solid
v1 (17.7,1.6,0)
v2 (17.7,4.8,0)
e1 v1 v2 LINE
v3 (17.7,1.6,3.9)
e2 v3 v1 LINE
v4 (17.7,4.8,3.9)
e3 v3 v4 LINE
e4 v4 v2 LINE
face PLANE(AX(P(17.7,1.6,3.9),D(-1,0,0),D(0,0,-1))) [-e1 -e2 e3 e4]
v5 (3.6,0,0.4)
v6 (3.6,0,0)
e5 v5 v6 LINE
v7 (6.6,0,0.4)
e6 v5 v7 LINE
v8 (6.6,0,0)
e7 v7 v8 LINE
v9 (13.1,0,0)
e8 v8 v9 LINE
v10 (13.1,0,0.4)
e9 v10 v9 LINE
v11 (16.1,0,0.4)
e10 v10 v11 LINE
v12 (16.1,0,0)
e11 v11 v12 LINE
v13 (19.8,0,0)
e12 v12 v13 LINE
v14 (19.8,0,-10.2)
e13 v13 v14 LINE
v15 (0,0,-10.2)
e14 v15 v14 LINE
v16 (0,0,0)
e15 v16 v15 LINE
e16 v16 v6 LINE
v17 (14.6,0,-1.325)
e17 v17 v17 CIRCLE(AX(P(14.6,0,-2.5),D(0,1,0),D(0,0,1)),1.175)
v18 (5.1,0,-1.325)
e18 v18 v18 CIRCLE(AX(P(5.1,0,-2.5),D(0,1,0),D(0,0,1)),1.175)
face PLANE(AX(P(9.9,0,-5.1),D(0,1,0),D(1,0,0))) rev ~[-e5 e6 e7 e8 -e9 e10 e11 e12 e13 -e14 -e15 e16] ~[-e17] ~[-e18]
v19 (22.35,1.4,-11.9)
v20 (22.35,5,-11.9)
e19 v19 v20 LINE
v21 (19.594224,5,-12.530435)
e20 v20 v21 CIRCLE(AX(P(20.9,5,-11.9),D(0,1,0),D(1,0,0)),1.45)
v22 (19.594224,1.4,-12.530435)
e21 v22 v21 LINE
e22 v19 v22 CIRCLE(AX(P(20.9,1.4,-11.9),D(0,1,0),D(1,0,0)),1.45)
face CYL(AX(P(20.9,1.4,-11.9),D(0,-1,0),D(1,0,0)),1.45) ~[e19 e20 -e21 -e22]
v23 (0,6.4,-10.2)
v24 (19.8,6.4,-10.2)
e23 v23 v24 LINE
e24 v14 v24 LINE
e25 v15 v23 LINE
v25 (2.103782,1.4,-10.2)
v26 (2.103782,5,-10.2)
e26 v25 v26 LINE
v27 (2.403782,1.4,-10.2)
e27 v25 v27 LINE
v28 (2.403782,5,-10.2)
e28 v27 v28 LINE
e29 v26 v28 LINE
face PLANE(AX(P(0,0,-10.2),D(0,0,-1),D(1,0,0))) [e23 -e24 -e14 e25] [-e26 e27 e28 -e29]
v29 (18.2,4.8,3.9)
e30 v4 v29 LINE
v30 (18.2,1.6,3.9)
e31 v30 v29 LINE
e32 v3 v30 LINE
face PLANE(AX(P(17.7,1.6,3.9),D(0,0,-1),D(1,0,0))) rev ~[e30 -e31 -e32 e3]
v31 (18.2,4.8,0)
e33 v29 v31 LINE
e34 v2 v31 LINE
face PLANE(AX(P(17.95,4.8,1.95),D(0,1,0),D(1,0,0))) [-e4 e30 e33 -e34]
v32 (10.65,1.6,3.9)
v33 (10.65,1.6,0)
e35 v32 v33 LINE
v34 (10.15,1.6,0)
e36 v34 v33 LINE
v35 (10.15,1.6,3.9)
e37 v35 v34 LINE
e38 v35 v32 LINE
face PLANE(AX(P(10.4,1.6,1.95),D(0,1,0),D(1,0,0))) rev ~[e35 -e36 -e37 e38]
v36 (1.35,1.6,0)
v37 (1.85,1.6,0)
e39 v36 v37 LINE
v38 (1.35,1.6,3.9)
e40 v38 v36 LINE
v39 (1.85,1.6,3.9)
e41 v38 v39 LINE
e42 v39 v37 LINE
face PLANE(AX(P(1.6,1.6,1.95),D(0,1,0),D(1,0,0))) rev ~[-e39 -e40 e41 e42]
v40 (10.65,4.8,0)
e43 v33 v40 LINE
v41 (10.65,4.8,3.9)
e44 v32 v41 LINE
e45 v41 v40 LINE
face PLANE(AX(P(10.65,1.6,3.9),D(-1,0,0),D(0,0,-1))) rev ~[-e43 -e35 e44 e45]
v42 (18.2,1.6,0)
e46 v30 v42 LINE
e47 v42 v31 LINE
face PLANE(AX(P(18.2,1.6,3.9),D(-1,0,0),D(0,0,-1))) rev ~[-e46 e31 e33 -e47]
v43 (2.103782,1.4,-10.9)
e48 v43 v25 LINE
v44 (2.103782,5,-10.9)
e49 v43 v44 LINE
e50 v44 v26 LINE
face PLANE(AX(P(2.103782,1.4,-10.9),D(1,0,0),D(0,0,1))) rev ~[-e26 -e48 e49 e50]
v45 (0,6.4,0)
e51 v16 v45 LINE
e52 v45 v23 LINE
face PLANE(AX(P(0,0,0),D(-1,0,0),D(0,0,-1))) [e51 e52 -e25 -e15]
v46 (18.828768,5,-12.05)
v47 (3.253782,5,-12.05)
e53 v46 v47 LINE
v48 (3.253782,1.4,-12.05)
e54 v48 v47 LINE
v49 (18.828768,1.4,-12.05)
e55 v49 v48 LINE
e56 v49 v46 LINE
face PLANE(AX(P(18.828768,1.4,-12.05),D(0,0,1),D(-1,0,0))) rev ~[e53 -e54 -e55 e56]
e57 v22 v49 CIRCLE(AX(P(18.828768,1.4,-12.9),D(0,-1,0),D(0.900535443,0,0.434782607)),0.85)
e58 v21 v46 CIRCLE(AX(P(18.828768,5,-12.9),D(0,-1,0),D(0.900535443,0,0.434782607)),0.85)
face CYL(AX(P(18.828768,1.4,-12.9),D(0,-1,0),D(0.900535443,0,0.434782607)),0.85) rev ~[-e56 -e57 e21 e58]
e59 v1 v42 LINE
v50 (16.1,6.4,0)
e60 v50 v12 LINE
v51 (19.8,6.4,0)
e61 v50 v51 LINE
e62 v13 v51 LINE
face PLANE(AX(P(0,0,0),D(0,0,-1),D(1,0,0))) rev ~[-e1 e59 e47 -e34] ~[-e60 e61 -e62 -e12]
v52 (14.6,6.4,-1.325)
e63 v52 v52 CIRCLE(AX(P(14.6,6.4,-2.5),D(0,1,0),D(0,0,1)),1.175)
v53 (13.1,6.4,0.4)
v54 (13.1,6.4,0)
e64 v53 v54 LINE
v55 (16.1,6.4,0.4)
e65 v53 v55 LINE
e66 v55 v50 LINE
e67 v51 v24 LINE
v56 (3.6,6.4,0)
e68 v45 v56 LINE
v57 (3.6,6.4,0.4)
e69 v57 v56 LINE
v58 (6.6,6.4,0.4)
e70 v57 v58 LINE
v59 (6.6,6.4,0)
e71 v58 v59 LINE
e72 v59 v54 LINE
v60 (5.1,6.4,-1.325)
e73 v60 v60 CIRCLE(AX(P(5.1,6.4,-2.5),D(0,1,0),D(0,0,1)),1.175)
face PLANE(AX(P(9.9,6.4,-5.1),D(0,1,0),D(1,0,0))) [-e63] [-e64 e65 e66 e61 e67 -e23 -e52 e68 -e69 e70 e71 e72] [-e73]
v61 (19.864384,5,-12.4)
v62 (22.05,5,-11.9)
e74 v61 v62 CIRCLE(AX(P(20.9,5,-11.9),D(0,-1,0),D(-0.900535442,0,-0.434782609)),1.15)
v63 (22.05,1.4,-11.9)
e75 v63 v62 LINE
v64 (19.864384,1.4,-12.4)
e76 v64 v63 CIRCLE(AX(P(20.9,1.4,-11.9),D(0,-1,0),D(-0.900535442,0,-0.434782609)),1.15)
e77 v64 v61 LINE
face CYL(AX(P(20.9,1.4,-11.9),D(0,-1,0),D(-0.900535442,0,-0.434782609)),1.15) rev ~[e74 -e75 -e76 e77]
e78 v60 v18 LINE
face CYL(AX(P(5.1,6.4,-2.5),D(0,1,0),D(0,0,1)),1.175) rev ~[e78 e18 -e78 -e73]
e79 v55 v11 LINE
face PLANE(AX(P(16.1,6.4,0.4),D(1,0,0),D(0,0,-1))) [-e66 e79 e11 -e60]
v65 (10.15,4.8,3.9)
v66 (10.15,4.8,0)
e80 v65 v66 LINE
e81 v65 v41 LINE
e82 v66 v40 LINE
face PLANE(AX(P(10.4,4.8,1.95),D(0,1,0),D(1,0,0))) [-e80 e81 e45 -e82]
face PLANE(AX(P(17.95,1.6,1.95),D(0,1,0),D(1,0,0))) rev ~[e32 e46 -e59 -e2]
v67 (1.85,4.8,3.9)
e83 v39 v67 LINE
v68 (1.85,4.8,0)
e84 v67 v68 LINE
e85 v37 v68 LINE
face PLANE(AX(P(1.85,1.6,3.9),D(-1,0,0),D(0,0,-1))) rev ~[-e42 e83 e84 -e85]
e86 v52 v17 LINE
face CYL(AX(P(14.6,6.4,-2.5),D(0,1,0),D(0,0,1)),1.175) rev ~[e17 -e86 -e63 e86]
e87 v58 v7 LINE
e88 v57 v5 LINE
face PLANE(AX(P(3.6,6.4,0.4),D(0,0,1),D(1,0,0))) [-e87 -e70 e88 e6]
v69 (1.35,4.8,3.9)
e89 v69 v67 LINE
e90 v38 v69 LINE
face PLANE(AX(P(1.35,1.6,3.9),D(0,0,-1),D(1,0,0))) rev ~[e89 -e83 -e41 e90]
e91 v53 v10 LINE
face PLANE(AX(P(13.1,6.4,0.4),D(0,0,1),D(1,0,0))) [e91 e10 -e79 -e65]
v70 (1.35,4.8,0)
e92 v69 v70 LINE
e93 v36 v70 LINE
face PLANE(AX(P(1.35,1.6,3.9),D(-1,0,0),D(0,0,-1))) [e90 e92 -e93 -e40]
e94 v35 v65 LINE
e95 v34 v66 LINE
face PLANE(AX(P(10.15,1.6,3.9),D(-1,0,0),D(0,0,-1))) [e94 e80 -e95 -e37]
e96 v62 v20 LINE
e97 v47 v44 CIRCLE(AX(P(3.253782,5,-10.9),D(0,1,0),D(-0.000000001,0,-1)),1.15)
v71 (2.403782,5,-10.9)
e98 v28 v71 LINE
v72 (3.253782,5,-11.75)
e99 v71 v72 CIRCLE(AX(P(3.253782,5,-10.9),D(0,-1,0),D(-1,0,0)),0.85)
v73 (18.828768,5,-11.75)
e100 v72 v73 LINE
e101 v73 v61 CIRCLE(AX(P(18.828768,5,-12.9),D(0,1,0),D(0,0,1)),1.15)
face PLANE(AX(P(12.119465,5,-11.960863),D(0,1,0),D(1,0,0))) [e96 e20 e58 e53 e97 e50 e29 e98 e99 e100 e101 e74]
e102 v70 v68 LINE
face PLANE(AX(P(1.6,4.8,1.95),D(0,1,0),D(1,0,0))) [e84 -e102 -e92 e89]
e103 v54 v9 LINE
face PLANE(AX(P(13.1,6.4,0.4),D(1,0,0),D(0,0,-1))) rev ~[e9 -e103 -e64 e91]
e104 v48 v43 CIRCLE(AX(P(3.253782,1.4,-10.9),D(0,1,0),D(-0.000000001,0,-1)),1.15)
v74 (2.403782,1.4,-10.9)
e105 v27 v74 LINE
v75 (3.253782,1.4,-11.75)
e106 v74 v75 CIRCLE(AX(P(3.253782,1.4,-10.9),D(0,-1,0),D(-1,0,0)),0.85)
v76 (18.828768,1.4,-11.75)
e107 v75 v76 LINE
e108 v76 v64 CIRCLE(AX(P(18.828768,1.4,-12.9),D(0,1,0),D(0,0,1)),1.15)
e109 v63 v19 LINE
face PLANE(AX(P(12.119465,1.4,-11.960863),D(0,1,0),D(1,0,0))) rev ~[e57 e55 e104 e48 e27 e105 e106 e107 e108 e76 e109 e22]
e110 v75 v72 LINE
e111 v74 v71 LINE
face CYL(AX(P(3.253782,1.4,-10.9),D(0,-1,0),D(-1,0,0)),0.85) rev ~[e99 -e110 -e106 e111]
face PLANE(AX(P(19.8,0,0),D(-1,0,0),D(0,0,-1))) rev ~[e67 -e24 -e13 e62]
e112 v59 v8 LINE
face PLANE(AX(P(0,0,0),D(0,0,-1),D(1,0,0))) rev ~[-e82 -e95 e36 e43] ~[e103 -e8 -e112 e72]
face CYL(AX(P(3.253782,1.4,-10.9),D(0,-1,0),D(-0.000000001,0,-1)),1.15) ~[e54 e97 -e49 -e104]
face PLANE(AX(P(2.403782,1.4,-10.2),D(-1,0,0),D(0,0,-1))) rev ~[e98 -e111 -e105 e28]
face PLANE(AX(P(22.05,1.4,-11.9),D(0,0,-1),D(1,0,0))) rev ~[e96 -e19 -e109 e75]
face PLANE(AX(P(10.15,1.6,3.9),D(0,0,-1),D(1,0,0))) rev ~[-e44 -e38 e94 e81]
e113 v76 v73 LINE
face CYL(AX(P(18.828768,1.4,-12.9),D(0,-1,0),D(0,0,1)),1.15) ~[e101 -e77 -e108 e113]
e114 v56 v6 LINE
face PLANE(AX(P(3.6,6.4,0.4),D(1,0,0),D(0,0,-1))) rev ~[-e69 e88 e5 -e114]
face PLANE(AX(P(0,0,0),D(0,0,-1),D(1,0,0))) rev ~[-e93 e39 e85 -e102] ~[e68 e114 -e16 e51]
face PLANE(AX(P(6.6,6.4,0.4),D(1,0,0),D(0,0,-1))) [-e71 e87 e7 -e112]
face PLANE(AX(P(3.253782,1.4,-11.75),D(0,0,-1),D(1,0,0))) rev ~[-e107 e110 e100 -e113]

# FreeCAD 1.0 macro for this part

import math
import FreeCAD as App
import Part
import Sketcher

V = App.Vector
Q = App.Units.Quantity

doc = App.newDocument("Part")
params = doc.addObject("Spreadsheet::Sheet", "Params")
for row, (alias, value) in enumerate([
    ("sketch1_width", "19.8 mm"),
    ("sketch1_height", "10.2 mm"),
    ("pad1_length", "6.4 mm"),
    ("sketch2_diameter", "2.35 mm"),
    ("sketch3_diameter", "2.35 mm"),
    ("sketch4_radius", "0.85 mm"),
    ("sketch4_radius2", "1.15 mm"),
    ("sketch4_height", "0.7 mm"),
    ("pad2_length", "1.8 mm"),
    ("pad2_length2", "1.8 mm"),
    ("sketch5_width", "0.5 mm"),
    ("sketch5_height", "3.9 mm"),
    ("pad3_length", "1.6 mm"),
    ("pad3_length2", "1.6 mm"),
    ("sketch6_width", "3 mm"),
    ("sketch6_height", "0.4 mm"),
    ("pad4_length", "6.4 mm"),
], start=1):
    params.set(f"A{row}", alias)
    params.set(f"B{row}", "=" + value)
    params.setAlias(f"B{row}", alias)

body = doc.addObject("PartDesign::Body", "Body")

# Sketch on XZ plane
sketch1 = body.newObject("Sketcher::SketchObject", "Sketch")
sketch1.AttachmentSupport = (doc.getObject("XZ_Plane"), [""])
sketch1.MapMode = "FlatFace"
sketch1.addGeometry([
    Part.LineSegment(V(0, -10, 0), V(0, 0, 0)),
    Part.LineSegment(V(0, 0, 0), V(20, 0, 0)),
    Part.LineSegment(V(20, 0, 0), V(20, -10, 0)),
    Part.LineSegment(V(20, -10, 0), V(0, -10, 0)),
], False)
sketch1.addConstraint([
    Sketcher.Constraint("Coincident", 0, 2, 1, 1),
    Sketcher.Constraint("Coincident", 1, 2, 2, 1),
    Sketcher.Constraint("Coincident", 2, 2, 3, 1),
    Sketcher.Constraint("Coincident", 3, 2, 0, 1),
    Sketcher.Constraint("Vertical", 0),
    Sketcher.Constraint("Horizontal", 1),
    Sketcher.Constraint("Vertical", 2),
    Sketcher.Constraint("Horizontal", 3),
    Sketcher.Constraint("Coincident", 0, 2, -1, 1),
    Sketcher.Constraint("DistanceX", 1, 1, 1, 2, Q("19.8 mm")),
    Sketcher.Constraint("DistanceY", 0, 1, 0, 2, Q("10.2 mm")),
])
sketch1.setExpression("Constraints[9]", "Params.sketch1_width")
sketch1.setExpression("Constraints[10]", "Params.sketch1_height")
pad1 = body.newObject("PartDesign::Pad", "Pad")
pad1.Profile = sketch1
pad1.setExpression("Length", "Params.pad1_length")
pad1.Reversed = True

# Sketch on XZ plane
sketch2 = body.newObject("Sketcher::SketchObject", "Sketch001")
sketch2.AttachmentSupport = (doc.getObject("XZ_Plane"), [""])
sketch2.MapMode = "FlatFace"
sketch2.AttachmentOffset = App.Placement(V(0, 0, -6.4), App.Rotation())
sketch2.addGeometry(Part.Circle(V(5.1, -2.5, 0), V(0, 0, 1), 1.2), False)
sketch2.addConstraint([
    Sketcher.Constraint("Diameter", 0, Q("2.35 mm")),
    Sketcher.Constraint("DistanceX", -1, 1, 0, 3, Q("5.1 mm")),
    Sketcher.Constraint("DistanceY", 0, 3, -1, 1, Q("2.5 mm")),
])
sketch2.setExpression("Constraints[0]", "Params.sketch2_diameter")
pocket1 = body.newObject("PartDesign::Pocket", "Pocket")
pocket1.Profile = sketch2
pocket1.Type = "UpToFirst"
pocket1.Reversed = True

# Sketch on XZ plane
sketch3 = body.newObject("Sketcher::SketchObject", "Sketch002")
sketch3.AttachmentSupport = (doc.getObject("XZ_Plane"), [""])
sketch3.MapMode = "FlatFace"
sketch3.AttachmentOffset = App.Placement(V(0, 0, -6.4), App.Rotation())
sketch3.addGeometry(Part.Circle(V(14.6, -2.5, 0), V(0, 0, 1), 1.2), False)
sketch3.addConstraint([
    Sketcher.Constraint("Diameter", 0, Q("2.35 mm")),
    Sketcher.Constraint("DistanceX", -1, 1, 0, 3, Q("14.6 mm")),
    Sketcher.Constraint("DistanceY", 0, 3, -1, 1, Q("2.5 mm")),
])
sketch3.setExpression("Constraints[0]", "Params.sketch3_diameter")
pocket2 = body.newObject("PartDesign::Pocket", "Pocket001")
pocket2.Profile = sketch3
pocket2.Type = "UpToFirst"
pocket2.Reversed = True

# Sketch on XZ plane
sketch4 = body.newObject("Sketcher::SketchObject", "Sketch003")
sketch4.AttachmentSupport = (doc.getObject("XZ_Plane"), [""])
sketch4.MapMode = "FlatFace"
sketch4.AttachmentOffset = App.Placement(V(0, 0, -3.2), App.Rotation())
sketch4.addGeometry([
    Part.LineSegment(V(2.4, -10.2, 0), V(2.4, -10.9, 0)),  # 0
    Part.ArcOfCircle(Part.Circle(V(3.25, -10.9, 0), V(0, 0, 1), 0.85), math.radians(180), math.radians(270)),  # 1
    Part.LineSegment(V(3.25, -11.75, 0), V(18.83, -11.75, 0)),  # 2
    Part.ArcOfCircle(Part.Circle(V(18.83, -12.9, 0), V(0, 0, 1), 1.15), math.radians(26), math.radians(90)),  # 3
    Part.ArcOfCircle(Part.Circle(V(20.9, -11.9, 0), V(0, 0, 1), 1.15), math.radians(-154), math.radians(0)),  # 4
    Part.LineSegment(V(22.05, -11.9, 0), V(22.35, -11.9, 0)),  # 5
    Part.ArcOfCircle(Part.Circle(V(20.9, -11.9, 0), V(0, 0, 1), 1.45), math.radians(-154), math.radians(0)),  # 6
    Part.ArcOfCircle(Part.Circle(V(18.83, -12.9, 0), V(0, 0, 1), 0.85), math.radians(26), math.radians(90)),  # 7
    Part.LineSegment(V(18.83, -12.05, 0), V(3.25, -12.05, 0)),  # 8
    Part.ArcOfCircle(Part.Circle(V(3.25, -10.9, 0), V(0, 0, 1), 1.15), math.radians(-180), math.radians(-90)),  # 9
    Part.LineSegment(V(2.1, -10.9, 0), V(2.1, -10.2, 0)),  # 10
    Part.LineSegment(V(2.1, -10.2, 0), V(2.4, -10.2, 0)),  # 11
], False)
sketch4.addConstraint([
    Sketcher.Constraint("Tangent", 0, 2, 1, 1),
    Sketcher.Constraint("Tangent", 1, 2, 2, 1),
    Sketcher.Constraint("Tangent", 2, 2, 3, 2),
    Sketcher.Constraint("Tangent", 3, 1, 4, 1),
    Sketcher.Constraint("Coincident", 4, 2, 5, 1),
    Sketcher.Constraint("Coincident", 5, 2, 6, 2),
    Sketcher.Constraint("Tangent", 6, 1, 7, 1),
    Sketcher.Constraint("Tangent", 7, 2, 8, 1),
    Sketcher.Constraint("Tangent", 8, 2, 9, 2),
    Sketcher.Constraint("Tangent", 9, 1, 10, 1),
    Sketcher.Constraint("Coincident", 10, 2, 11, 1),
    Sketcher.Constraint("Coincident", 11, 2, 0, 1),
    Sketcher.Constraint("Vertical", 0),
    Sketcher.Constraint("Horizontal", 2),
    Sketcher.Constraint("Horizontal", 5),
    Sketcher.Constraint("Horizontal", 8),
    Sketcher.Constraint("Vertical", 10),
    Sketcher.Constraint("Horizontal", 11),
    Sketcher.Constraint("Coincident", 6, 3, 4, 3),
    Sketcher.Constraint("Coincident", 7, 3, 3, 3),
    Sketcher.Constraint("Coincident", 9, 3, 1, 3),
    Sketcher.Constraint("Equal", 3, 4),
    Sketcher.Constraint("Equal", 1, 7),
    Sketcher.Constraint("Horizontal", 6, 3, 4, 2),
    Sketcher.Constraint("Radius", 1, Q("0.85 mm")),
    Sketcher.Constraint("Radius", 3, Q("1.15 mm")),
    Sketcher.Constraint("DistanceY", 0, 2, 0, 1, Q("0.7 mm")),
    Sketcher.Constraint("DistanceY", 3, 3, 4, 3, Q("1 mm")),
    Sketcher.Constraint("DistanceY", 1, 3, -1, 1, Q("10.9 mm")),
    Sketcher.Constraint("DistanceX", -1, 1, 4, 3, Q("20.9 mm")),
    Sketcher.Constraint("DistanceX", 2, 1, 2, 2, Q("15.574986 mm")),
])
sketch4.setExpression("Constraints[24]", "Params.sketch4_radius")
sketch4.setExpression("Constraints[25]", "Params.sketch4_radius2")
sketch4.setExpression("Constraints[26]", "Params.sketch4_height")
pad2 = body.newObject("PartDesign::Pad", "Pad001")
pad2.Profile = sketch4
pad2.Type = "TwoLengths"
pad2.setExpression("Length", "Params.pad2_length")
pad2.setExpression("Length2", "Params.pad2_length2")
pad2.Reversed = True

# Sketch on XZ plane
sketch5 = body.newObject("Sketcher::SketchObject", "Sketch004")
sketch5.AttachmentSupport = (doc.getObject("XZ_Plane"), [""])
sketch5.MapMode = "FlatFace"
sketch5.AttachmentOffset = App.Placement(V(0, 0, -3.2), App.Rotation())
sketch5.addGeometry([
    Part.LineSegment(V(1.4, 0, 0), V(1.4, 3.9, 0)),  # 0
    Part.LineSegment(V(1.4, 3.9, 0), V(1.9, 3.9, 0)),  # 1
    Part.LineSegment(V(1.9, 3.9, 0), V(1.9, 0, 0)),  # 2
    Part.LineSegment(V(1.9, 0, 0), V(1.4, 0, 0)),  # 3
    Part.LineSegment(V(10.2, 0, 0), V(10.2, 3.9, 0)),  # 4
    Part.LineSegment(V(10.2, 3.9, 0), V(10.7, 3.9, 0)),  # 5
    Part.LineSegment(V(10.7, 3.9, 0), V(10.7, 0, 0)),  # 6
    Part.LineSegment(V(10.7, 0, 0), V(10.2, 0, 0)),  # 7
    Part.LineSegment(V(17.7, 0, 0), V(17.7, 3.9, 0)),  # 8
    Part.LineSegment(V(17.7, 3.9, 0), V(18.2, 3.9, 0)),  # 9
    Part.LineSegment(V(18.2, 3.9, 0), V(18.2, 0, 0)),  # 10
    Part.LineSegment(V(18.2, 0, 0), V(17.7, 0, 0)),  # 11
], False)
sketch5.addConstraint([
    Sketcher.Constraint("Coincident", 0, 2, 1, 1),
    Sketcher.Constraint("Coincident", 1, 2, 2, 1),
    Sketcher.Constraint("Coincident", 2, 2, 3, 1),
    Sketcher.Constraint("Coincident", 3, 2, 0, 1),
    Sketcher.Constraint("Coincident", 4, 2, 5, 1),
    Sketcher.Constraint("Coincident", 5, 2, 6, 1),
    Sketcher.Constraint("Coincident", 6, 2, 7, 1),
    Sketcher.Constraint("Coincident", 7, 2, 4, 1),
    Sketcher.Constraint("Coincident", 8, 2, 9, 1),
    Sketcher.Constraint("Coincident", 9, 2, 10, 1),
    Sketcher.Constraint("Coincident", 10, 2, 11, 1),
    Sketcher.Constraint("Coincident", 11, 2, 8, 1),
    Sketcher.Constraint("Vertical", 0),
    Sketcher.Constraint("Horizontal", 1),
    Sketcher.Constraint("Vertical", 2),
    Sketcher.Constraint("Horizontal", 3),
    Sketcher.Constraint("Vertical", 4),
    Sketcher.Constraint("Horizontal", 5),
    Sketcher.Constraint("Vertical", 6),
    Sketcher.Constraint("Horizontal", 7),
    Sketcher.Constraint("Vertical", 8),
    Sketcher.Constraint("Horizontal", 9),
    Sketcher.Constraint("Vertical", 10),
    Sketcher.Constraint("Horizontal", 11),
    Sketcher.Constraint("PointOnObject", 2, 2, -1),
    Sketcher.Constraint("PointOnObject", 6, 2, -1),
    Sketcher.Constraint("PointOnObject", 10, 2, -1),
    Sketcher.Constraint("Horizontal", 1, 2, 4, 2),
    Sketcher.Constraint("Horizontal", 5, 2, 8, 2),
    Sketcher.Constraint("Equal", 3, 5),
    Sketcher.Constraint("Equal", 7, 9),
    Sketcher.Constraint("DistanceX", 1, 1, 1, 2, Q("0.5 mm")),
    Sketcher.Constraint("DistanceY", 0, 1, 0, 2, Q("3.9 mm")),
    Sketcher.Constraint("DistanceX", -1, 1, 8, 2, Q("17.7 mm")),
    Sketcher.Constraint("DistanceX", 1, 2, 4, 2, Q("8.3 mm")),
    Sketcher.Constraint("DistanceX", -1, 1, 0, 2, Q("1.35 mm")),
])
sketch5.setExpression("Constraints[31]", "Params.sketch5_width")
sketch5.setExpression("Constraints[32]", "Params.sketch5_height")
pad3 = body.newObject("PartDesign::Pad", "Pad002")
pad3.Profile = sketch5
pad3.Type = "TwoLengths"
pad3.setExpression("Length", "Params.pad3_length")
pad3.setExpression("Length2", "Params.pad3_length2")
pad3.Reversed = True

# Sketch on XZ plane
sketch6 = body.newObject("Sketcher::SketchObject", "Sketch005")
sketch6.AttachmentSupport = (doc.getObject("XZ_Plane"), [""])
sketch6.MapMode = "FlatFace"
sketch6.AttachmentOffset = App.Placement(V(0, 0, -6.4), App.Rotation())
sketch6.addGeometry([
    Part.LineSegment(V(3.6, 0, 0), V(3.6, 0.4, 0)),  # 0
    Part.LineSegment(V(3.6, 0.4, 0), V(6.6, 0.4, 0)),  # 1
    Part.LineSegment(V(6.6, 0.4, 0), V(6.6, 0, 0)),  # 2
    Part.LineSegment(V(6.6, 0, 0), V(3.6, 0, 0)),  # 3
    Part.LineSegment(V(13.1, 0, 0), V(13.1, 0.4, 0)),  # 4
    Part.LineSegment(V(13.1, 0.4, 0), V(16.1, 0.4, 0)),  # 5
    Part.LineSegment(V(16.1, 0.4, 0), V(16.1, 0, 0)),  # 6
    Part.LineSegment(V(16.1, 0, 0), V(13.1, 0, 0)),  # 7
], False)
sketch6.addConstraint([
    Sketcher.Constraint("Coincident", 0, 2, 1, 1),
    Sketcher.Constraint("Coincident", 1, 2, 2, 1),
    Sketcher.Constraint("Coincident", 2, 2, 3, 1),
    Sketcher.Constraint("Coincident", 3, 2, 0, 1),
    Sketcher.Constraint("Coincident", 4, 2, 5, 1),
    Sketcher.Constraint("Coincident", 5, 2, 6, 1),
    Sketcher.Constraint("Coincident", 6, 2, 7, 1),
    Sketcher.Constraint("Coincident", 7, 2, 4, 1),
    Sketcher.Constraint("Vertical", 0),
    Sketcher.Constraint("Horizontal", 1),
    Sketcher.Constraint("Vertical", 2),
    Sketcher.Constraint("Horizontal", 3),
    Sketcher.Constraint("Vertical", 4),
    Sketcher.Constraint("Horizontal", 5),
    Sketcher.Constraint("Vertical", 6),
    Sketcher.Constraint("Horizontal", 7),
    Sketcher.Constraint("PointOnObject", 2, 2, -1),
    Sketcher.Constraint("PointOnObject", 6, 2, -1),
    Sketcher.Constraint("Horizontal", 1, 2, 4, 2),
    Sketcher.Constraint("Equal", 3, 5),
    Sketcher.Constraint("DistanceX", 1, 1, 1, 2, Q("3 mm")),
    Sketcher.Constraint("DistanceY", 0, 1, 0, 2, Q("0.4 mm")),
    Sketcher.Constraint("DistanceX", -1, 1, 0, 2, Q("3.6 mm")),
    Sketcher.Constraint("DistanceX", -1, 1, 4, 2, Q("13.1 mm")),
])
sketch6.setExpression("Constraints[20]", "Params.sketch6_width")
sketch6.setExpression("Constraints[21]", "Params.sketch6_height")
pad4 = body.newObject("PartDesign::Pad", "Pad003")
pad4.Profile = sketch6
pad4.setExpression("Length", "Params.pad4_length")

doc.recompute()
